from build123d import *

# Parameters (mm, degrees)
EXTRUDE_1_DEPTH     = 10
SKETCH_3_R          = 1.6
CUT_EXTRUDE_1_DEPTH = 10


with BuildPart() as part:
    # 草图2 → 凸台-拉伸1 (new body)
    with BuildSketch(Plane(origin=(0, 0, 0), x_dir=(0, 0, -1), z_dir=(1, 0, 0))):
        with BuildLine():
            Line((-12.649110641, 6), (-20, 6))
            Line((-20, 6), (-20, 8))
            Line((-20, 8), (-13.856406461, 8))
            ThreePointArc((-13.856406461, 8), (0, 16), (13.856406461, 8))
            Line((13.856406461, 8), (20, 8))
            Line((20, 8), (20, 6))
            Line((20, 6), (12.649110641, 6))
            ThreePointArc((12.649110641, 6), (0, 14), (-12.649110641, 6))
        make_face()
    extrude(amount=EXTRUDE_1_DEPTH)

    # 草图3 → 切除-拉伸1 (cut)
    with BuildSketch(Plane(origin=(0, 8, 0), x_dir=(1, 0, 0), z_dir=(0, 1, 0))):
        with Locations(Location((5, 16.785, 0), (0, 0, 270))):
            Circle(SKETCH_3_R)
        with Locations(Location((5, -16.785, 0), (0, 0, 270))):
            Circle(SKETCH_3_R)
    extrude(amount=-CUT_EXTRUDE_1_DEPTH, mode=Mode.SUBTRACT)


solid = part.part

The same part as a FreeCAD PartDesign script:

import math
import FreeCAD as App
import Part
import Sketcher

V = App.Vector

doc = App.newDocument("Part")
body = doc.addObject("PartDesign::Body", "Body")

sketch1 = body.newObject("Sketcher::SketchObject", "Sketch")
sketch1.AttachmentSupport = (doc.getObject("YZ_Plane"), [""])
sketch1.MapMode = "FlatFace"
sketch1.addGeometry(Part.LineSegment(V(6, 20, 0), V(6, 12.6, 0)), False)
sketch1.addGeometry(Part.ArcOfCircle(Part.Circle(V(0, 0, 0), V(0, 0, 1), 14), math.radians(-65), math.radians(65)), False)
sketch1.addGeometry(Part.LineSegment(V(6, -12.6, 0), V(6, -20, 0)), False)
sketch1.addGeometry(Part.LineSegment(V(6, -20, 0), V(8, -20, 0)), False)
sketch1.addGeometry(Part.LineSegment(V(8, -20, 0), V(8, -13.9, 0)), False)
sketch1.addGeometry(Part.ArcOfCircle(Part.Circle(V(0, 0, 0), V(0, 0, 1), 16), math.radians(-60), math.radians(60)), False)
sketch1.addGeometry(Part.LineSegment(V(8, 13.9, 0), V(8, 20, 0)), False)
sketch1.addGeometry(Part.LineSegment(V(8, 20, 0), V(6, 20, 0)), False)
sketch1.addConstraint(Sketcher.Constraint("Coincident", 0, 2, 1, 2))
sketch1.addConstraint(Sketcher.Constraint("Coincident", 1, 1, 2, 1))
sketch1.addConstraint(Sketcher.Constraint("Coincident", 2, 2, 3, 1))
sketch1.addConstraint(Sketcher.Constraint("Coincident", 3, 2, 4, 1))
sketch1.addConstraint(Sketcher.Constraint("Coincident", 4, 2, 5, 1))
sketch1.addConstraint(Sketcher.Constraint("Coincident", 5, 2, 6, 1))
sketch1.addConstraint(Sketcher.Constraint("Coincident", 6, 2, 7, 1))
sketch1.addConstraint(Sketcher.Constraint("Coincident", 7, 2, 0, 1))
sketch1.addConstraint(Sketcher.Constraint("Vertical", 0))
sketch1.addConstraint(Sketcher.Constraint("Vertical", 2))
sketch1.addConstraint(Sketcher.Constraint("Horizontal", 3))
sketch1.addConstraint(Sketcher.Constraint("Vertical", 4))
sketch1.addConstraint(Sketcher.Constraint("Vertical", 6))
sketch1.addConstraint(Sketcher.Constraint("Horizontal", 7))
sketch1.addConstraint(Sketcher.Constraint("Coincident", 1, 3, -1, 1))
sketch1.addConstraint(Sketcher.Constraint("Coincident", 5, 3, -1, 1))
sketch1.addConstraint(Sketcher.Constraint("Symmetric", 3, 2, 6, 2, -1))
sketch1.addConstraint(Sketcher.Constraint("Vertical", 0, 2, 1, 1))
sketch1.addConstraint(Sketcher.Constraint("Radius", 1, 14.0))
sketch1.addConstraint(Sketcher.Constraint("Radius", 5, 16.0))
sketch1.addConstraint(Sketcher.Constraint("DistanceX", 3, 1, 3, 2, 2.0))
sketch1.addConstraint(Sketcher.Constraint("DistanceX", -1, 1, 0, 2, 6.0))
sketch1.addConstraint(Sketcher.Constraint("DistanceY", 2, 2, -1, 1, 20.0))
pad1 = body.newObject("PartDesign::Pad", "Pad")
pad1.Profile = sketch1
pad1.Length = 10

sketch2 = body.newObject("Sketcher::SketchObject", "Sketch001")
sketch2.AttachmentSupport = (doc.getObject("XZ_Plane"), [""])
sketch2.MapMode = "FlatFace"
sketch2.AttachmentOffset = App.Placement(V(0, 0, -8), App.Rotation())
sketch2.addGeometry(Part.Circle(V(5, -16.8, 0), V(0, 0, 1), 1.6), False)
sketch2.addGeometry(Part.Circle(V(5, 16.8, 0), V(0, 0, 1), 1.6), False)
sketch2.addConstraint(Sketcher.Constraint("Equal", 0, 1))
sketch2.addConstraint(Sketcher.Constraint("Symmetric", 0, 3, 1, 3, -1))
sketch2.addConstraint(Sketcher.Constraint("Diameter", 0, 3.2))
sketch2.addConstraint(Sketcher.Constraint("DistanceX", -1, 1, 0, 3, 5.0))
sketch2.addConstraint(Sketcher.Constraint("DistanceY", 0, 3, 1, 3, 33.57))
pocket1 = body.newObject("PartDesign::Pocket", "Pocket")
pocket1.Profile = sketch2
pocket1.Length = 10
pocket1.Reversed = True

doc.recompute()
